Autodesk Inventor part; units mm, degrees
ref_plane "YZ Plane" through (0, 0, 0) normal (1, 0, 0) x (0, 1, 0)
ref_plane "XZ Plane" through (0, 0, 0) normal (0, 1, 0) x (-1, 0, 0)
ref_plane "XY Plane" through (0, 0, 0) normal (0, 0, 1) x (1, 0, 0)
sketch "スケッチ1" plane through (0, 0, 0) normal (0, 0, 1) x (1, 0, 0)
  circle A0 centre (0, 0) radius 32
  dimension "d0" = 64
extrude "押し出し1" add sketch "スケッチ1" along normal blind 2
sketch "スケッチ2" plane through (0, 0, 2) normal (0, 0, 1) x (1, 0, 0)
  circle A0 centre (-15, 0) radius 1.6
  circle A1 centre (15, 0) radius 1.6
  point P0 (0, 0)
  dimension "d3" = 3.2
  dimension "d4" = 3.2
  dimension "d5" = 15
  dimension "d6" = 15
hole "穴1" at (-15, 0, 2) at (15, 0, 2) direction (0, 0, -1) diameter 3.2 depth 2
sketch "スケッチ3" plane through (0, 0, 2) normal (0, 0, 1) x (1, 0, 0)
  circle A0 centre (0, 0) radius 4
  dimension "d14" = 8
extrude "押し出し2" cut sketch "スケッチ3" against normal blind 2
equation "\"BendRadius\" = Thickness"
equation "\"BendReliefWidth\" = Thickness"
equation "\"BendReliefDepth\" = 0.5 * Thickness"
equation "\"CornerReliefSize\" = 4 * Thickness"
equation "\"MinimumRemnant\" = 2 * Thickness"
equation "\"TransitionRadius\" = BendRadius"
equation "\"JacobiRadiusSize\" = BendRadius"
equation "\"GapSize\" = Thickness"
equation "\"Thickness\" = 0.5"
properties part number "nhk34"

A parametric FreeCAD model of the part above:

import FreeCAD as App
import Part
import Sketcher
from FreeCAD import Vector
Q = App.Units.Quantity

doc = App.newDocument("Part")
body = doc.addObject("PartDesign::Body", "Body")

sketch1 = body.newObject("Sketcher::SketchObject", "Sketch")
sketch1.AttachmentSupport = (doc.getObject("XY_Plane"), [""])
sketch1.MapMode = "FlatFace"
sketch1.addGeometry(Part.Circle(Vector(0, 0, 0), Vector(0, 0, 1), 32), False)
sketch1.addConstraint(Sketcher.Constraint("Coincident", 0, 3, -1, 1))
sketch1.addConstraint(Sketcher.Constraint("Diameter", 0, Q("64 mm")))
pad1 = body.newObject("PartDesign::Pad", "Pad")
pad1.Profile = sketch1
pad1.Length = 2

sketch2 = body.newObject("Sketcher::SketchObject", "Sketch001")
sketch2.AttachmentSupport = (doc.getObject("XY_Plane"), [""])
sketch2.MapMode = "FlatFace"
sketch2.AttachmentOffset = App.Placement(Vector(0, 0, 2), App.Rotation())
sketch2.addGeometry(Part.Circle(Vector(-15, 0, 0), Vector(0, 0, 1), 1.6), False)
sketch2.addGeometry(Part.Circle(Vector(15, 0, 0), Vector(0, 0, 1), 1.6), False)
sketch2.addConstraint(Sketcher.Constraint("Equal", 0, 1))
sketch2.addConstraint(Sketcher.Constraint("Symmetric", 0, 3, 1, 3, -1, 1))
sketch2.addConstraint(Sketcher.Constraint("PointOnObject", 0, 3, -1))
sketch2.addConstraint(Sketcher.Constraint("Diameter", 0, Q("3.2 mm")))
sketch2.addConstraint(Sketcher.Constraint("DistanceX", 0, 3, -1, 1, Q("15 mm")))
doc.recompute()
hole = body.newObject("PartDesign::Hole", "Hole")
hole.Profile = sketch2
hole.ThreadType = "None"
hole.Diameter = 3.2
hole.DepthType = "Dimension"
hole.Depth = 2
hole.DrillPoint = "Flat"

sketch3 = body.newObject("Sketcher::SketchObject", "Sketch002")
sketch3.AttachmentSupport = (doc.getObject("XY_Plane"), [""])
sketch3.MapMode = "FlatFace"
sketch3.AttachmentOffset = App.Placement(Vector(0, 0, 2), App.Rotation())
sketch3.addGeometry(Part.Circle(Vector(0, 0, 0), Vector(0, 0, 1), 4), False)
sketch3.addConstraint(Sketcher.Constraint("Coincident", 0, 3, -1, 1))
sketch3.addConstraint(Sketcher.Constraint("Diameter", 0, Q("8 mm")))
pocket1 = body.newObject("PartDesign::Pocket", "Pocket")
pocket1.Profile = sketch3
pocket1.Length = 2

doc.recompute()
